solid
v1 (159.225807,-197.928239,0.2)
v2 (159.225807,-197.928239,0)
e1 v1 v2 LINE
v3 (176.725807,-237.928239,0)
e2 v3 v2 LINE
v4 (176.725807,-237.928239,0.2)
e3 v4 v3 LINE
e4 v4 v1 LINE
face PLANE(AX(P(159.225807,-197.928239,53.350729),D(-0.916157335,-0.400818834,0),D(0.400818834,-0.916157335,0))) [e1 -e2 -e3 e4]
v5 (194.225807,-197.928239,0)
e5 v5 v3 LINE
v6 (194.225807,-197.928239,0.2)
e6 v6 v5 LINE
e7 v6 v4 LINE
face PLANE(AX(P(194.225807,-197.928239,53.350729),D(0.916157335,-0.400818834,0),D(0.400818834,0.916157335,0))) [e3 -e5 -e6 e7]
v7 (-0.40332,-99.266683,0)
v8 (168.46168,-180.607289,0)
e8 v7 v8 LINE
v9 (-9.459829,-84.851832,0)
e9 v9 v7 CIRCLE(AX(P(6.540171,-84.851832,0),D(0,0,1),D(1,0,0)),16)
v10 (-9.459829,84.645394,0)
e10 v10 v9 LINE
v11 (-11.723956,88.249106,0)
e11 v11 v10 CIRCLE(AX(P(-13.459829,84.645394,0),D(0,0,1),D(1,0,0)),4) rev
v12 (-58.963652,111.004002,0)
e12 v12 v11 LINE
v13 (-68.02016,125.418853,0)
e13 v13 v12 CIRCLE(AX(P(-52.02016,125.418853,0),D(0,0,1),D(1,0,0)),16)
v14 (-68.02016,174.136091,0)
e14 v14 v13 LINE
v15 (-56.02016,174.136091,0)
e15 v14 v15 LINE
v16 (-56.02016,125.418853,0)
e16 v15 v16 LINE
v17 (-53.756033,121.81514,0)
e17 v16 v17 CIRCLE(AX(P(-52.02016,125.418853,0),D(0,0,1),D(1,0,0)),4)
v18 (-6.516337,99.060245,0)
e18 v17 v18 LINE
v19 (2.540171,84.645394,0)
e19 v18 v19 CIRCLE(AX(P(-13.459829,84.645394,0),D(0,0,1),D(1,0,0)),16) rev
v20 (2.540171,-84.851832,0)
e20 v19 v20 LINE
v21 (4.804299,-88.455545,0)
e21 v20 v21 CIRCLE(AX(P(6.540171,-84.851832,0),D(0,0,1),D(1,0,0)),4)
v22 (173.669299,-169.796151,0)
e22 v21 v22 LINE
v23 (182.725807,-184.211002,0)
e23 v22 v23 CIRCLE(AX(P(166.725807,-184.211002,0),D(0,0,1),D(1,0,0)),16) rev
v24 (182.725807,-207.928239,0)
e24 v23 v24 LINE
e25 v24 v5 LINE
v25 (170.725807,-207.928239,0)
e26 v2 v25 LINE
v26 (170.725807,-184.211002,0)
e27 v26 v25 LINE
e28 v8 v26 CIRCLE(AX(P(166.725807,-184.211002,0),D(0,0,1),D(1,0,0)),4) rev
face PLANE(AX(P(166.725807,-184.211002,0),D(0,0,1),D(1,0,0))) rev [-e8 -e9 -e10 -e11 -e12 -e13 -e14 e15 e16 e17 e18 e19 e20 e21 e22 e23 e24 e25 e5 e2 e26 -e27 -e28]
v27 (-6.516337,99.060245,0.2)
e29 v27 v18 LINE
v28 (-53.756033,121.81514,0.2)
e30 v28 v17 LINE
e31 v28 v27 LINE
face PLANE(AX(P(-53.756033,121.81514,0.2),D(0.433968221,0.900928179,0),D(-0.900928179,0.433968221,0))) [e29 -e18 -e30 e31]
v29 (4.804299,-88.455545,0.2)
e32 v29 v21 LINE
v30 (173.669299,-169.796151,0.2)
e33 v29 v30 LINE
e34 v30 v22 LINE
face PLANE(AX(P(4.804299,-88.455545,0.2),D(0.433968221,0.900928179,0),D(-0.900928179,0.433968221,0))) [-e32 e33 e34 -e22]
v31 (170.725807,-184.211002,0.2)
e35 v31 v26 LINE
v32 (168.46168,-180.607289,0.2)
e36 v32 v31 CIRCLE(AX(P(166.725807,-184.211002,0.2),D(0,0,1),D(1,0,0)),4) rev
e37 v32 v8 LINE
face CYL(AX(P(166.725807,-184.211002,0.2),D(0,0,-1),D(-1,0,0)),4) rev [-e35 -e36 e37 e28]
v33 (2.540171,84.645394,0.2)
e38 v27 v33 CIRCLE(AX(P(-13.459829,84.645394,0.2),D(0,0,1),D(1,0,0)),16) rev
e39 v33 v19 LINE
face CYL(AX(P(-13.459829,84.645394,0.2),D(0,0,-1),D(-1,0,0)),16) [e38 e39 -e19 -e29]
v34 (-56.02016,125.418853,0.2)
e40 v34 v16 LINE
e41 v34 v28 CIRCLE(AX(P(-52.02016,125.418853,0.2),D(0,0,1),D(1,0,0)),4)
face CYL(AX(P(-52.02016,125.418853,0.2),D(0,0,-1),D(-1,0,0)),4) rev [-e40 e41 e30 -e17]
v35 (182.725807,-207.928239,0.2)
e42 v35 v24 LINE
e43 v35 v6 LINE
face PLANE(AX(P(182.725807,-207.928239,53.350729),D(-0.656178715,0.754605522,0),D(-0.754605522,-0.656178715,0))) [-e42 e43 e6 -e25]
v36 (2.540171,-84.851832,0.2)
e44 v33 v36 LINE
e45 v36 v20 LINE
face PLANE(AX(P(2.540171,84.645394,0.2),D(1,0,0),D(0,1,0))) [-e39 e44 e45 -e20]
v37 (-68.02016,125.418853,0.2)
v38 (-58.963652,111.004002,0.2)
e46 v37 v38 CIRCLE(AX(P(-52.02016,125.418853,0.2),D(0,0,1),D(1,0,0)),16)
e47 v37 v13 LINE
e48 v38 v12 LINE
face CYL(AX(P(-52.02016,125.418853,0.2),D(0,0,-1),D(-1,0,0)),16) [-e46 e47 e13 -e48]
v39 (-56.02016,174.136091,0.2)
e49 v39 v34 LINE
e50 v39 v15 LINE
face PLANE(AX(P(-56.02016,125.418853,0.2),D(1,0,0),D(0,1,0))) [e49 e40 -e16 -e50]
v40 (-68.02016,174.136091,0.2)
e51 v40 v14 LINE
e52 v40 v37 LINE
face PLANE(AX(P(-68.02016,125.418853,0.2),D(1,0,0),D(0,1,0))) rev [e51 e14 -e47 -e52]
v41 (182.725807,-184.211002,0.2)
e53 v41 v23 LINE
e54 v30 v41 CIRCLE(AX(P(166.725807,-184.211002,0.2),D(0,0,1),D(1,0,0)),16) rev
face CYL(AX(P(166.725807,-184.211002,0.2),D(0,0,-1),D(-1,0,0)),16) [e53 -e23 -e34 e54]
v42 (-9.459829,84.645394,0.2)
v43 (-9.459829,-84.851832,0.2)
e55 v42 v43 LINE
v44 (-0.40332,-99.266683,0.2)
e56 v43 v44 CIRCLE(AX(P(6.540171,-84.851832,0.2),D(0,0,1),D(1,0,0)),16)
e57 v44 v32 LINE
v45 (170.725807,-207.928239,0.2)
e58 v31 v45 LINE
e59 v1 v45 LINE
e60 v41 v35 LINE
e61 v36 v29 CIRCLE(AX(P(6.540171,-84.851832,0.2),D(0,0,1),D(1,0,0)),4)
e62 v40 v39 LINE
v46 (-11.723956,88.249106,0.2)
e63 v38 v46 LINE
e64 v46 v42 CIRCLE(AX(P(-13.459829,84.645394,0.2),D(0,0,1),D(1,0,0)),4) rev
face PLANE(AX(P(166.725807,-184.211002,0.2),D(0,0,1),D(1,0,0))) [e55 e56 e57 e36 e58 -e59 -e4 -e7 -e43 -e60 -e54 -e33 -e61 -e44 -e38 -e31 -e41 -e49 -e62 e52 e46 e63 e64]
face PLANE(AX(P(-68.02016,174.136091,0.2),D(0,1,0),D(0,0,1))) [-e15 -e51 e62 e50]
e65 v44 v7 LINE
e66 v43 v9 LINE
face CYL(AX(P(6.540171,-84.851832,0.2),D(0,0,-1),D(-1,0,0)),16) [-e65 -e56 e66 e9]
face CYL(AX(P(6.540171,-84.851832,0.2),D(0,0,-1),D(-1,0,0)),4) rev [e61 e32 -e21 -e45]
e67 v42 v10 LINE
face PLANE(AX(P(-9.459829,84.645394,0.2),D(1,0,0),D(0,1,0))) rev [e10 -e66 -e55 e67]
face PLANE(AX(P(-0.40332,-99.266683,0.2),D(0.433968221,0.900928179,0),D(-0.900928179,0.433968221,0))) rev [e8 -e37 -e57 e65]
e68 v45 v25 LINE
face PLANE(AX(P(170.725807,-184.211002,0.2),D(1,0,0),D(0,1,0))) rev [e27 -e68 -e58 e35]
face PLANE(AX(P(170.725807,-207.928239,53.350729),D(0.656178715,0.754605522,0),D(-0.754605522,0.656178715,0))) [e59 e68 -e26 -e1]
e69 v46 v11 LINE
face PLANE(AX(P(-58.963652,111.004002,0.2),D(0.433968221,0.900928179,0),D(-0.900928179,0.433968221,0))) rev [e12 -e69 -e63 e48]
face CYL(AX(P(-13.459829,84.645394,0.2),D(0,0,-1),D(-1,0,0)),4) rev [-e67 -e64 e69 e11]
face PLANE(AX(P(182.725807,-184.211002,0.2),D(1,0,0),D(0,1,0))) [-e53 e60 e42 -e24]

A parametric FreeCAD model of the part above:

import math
import FreeCAD as App
import Part
import Sketcher

doc = App.newDocument("Part")
body = doc.addObject("PartDesign::Body", "Body")

# Sketch on XY plane
sketch1 = doc.addObject("Sketcher::SketchObject", "Sketch")
body.addObject(sketch1)
sketch1.AttachmentSupport = (doc.XY_Plane, [""])
sketch1.MapMode = "FlatFace"
sketch1.addGeometry(Part.LineSegment(App.Vector(-68.02016, 174.136091, 0), App.Vector(-68.02016, 125.418853, 0)), False)
sketch1.addGeometry(Part.ArcOfCircle(Part.Circle(App.Vector(-52.02016, 125.418853, 0), App.Vector(0, 0, 1), 16), math.radians(180), math.radians(244.280342)), False)
sketch1.addGeometry(Part.LineSegment(App.Vector(-58.963652, 111.004002, 0), App.Vector(-11.723956, 88.249106, 0)), False)
sketch1.addGeometry(Part.ArcOfCircle(Part.Circle(App.Vector(-13.459829, 84.645394, 0), App.Vector(0, 0, 1), 4), math.radians(0), math.radians(64.280342)), False)
sketch1.addGeometry(Part.LineSegment(App.Vector(-9.459829, 84.645394, 0), App.Vector(-9.459829, -84.851832, 0)), False)
sketch1.addGeometry(Part.ArcOfCircle(Part.Circle(App.Vector(6.540171, -84.851832, 0), App.Vector(0, 0, 1), 16), math.radians(180), math.radians(244.280342)), False)
sketch1.addGeometry(Part.LineSegment(App.Vector(-0.40332, -99.266683, 0), App.Vector(168.46168, -180.607289, 0)), False)
sketch1.addGeometry(Part.ArcOfCircle(Part.Circle(App.Vector(166.725807, -184.211002, 0), App.Vector(0, 0, 1), 4), math.radians(0), math.radians(64.280342)), False)
sketch1.addGeometry(Part.LineSegment(App.Vector(170.725807, -184.211002, 0), App.Vector(170.725807, -207.928239, 0)), False)
sketch1.addGeometry(Part.LineSegment(App.Vector(170.725807, -207.928239, 0), App.Vector(182.725807, -207.928239, 0)), False)
sketch1.addGeometry(Part.LineSegment(App.Vector(182.725807, -207.928239, 0), App.Vector(182.725807, -184.211002, 0)), False)
sketch1.addGeometry(Part.ArcOfCircle(Part.Circle(App.Vector(166.725807, -184.211002, 0), App.Vector(0, 0, 1), 16), math.radians(0), math.radians(64.280342)), False)
sketch1.addGeometry(Part.LineSegment(App.Vector(173.669299, -169.796151, 0), App.Vector(4.804299, -88.455545, 0)), False)
sketch1.addGeometry(Part.ArcOfCircle(Part.Circle(App.Vector(6.540171, -84.851832, 0), App.Vector(0, 0, 1), 4), math.radians(180), math.radians(244.280342)), False)
sketch1.addGeometry(Part.LineSegment(App.Vector(2.540171, -84.851832, 0), App.Vector(2.540171, 84.645394, 0)), False)
sketch1.addGeometry(Part.ArcOfCircle(Part.Circle(App.Vector(-13.459829, 84.645394, 0), App.Vector(0, 0, 1), 16), math.radians(0), math.radians(64.280342)), False)
sketch1.addGeometry(Part.LineSegment(App.Vector(-6.516337, 99.060245, 0), App.Vector(-53.756033, 121.81514, 0)), False)
sketch1.addGeometry(Part.ArcOfCircle(Part.Circle(App.Vector(-52.02016, 125.418853, 0), App.Vector(0, 0, 1), 4), math.radians(180), math.radians(244.280342)), False)
sketch1.addGeometry(Part.LineSegment(App.Vector(-56.02016, 125.418853, 0), App.Vector(-56.02016, 174.136091, 0)), False)
sketch1.addGeometry(Part.LineSegment(App.Vector(-56.02016, 174.136091, 0), App.Vector(-68.02016, 174.136091, 0)), False)
sketch1.addConstraint(Sketcher.Constraint("Coincident", 0, 2, 1, 1))
sketch1.addConstraint(Sketcher.Constraint("Coincident", 1, 2, 2, 1))
sketch1.addConstraint(Sketcher.Constraint("Coincident", 2, 2, 3, 2))
sketch1.addConstraint(Sketcher.Constraint("Coincident", 3, 1, 4, 1))
sketch1.addConstraint(Sketcher.Constraint("Coincident", 4, 2, 5, 1))
sketch1.addConstraint(Sketcher.Constraint("Coincident", 5, 2, 6, 1))
sketch1.addConstraint(Sketcher.Constraint("Coincident", 6, 2, 7, 2))
sketch1.addConstraint(Sketcher.Constraint("Coincident", 7, 1, 8, 1))
sketch1.addConstraint(Sketcher.Constraint("Coincident", 8, 2, 9, 1))
sketch1.addConstraint(Sketcher.Constraint("Coincident", 9, 2, 10, 1))
sketch1.addConstraint(Sketcher.Constraint("Coincident", 10, 2, 11, 1))
sketch1.addConstraint(Sketcher.Constraint("Coincident", 11, 2, 12, 1))
sketch1.addConstraint(Sketcher.Constraint("Coincident", 12, 2, 13, 2))
sketch1.addConstraint(Sketcher.Constraint("Coincident", 13, 1, 14, 1))
sketch1.addConstraint(Sketcher.Constraint("Coincident", 14, 2, 15, 1))
sketch1.addConstraint(Sketcher.Constraint("Coincident", 15, 2, 16, 1))
sketch1.addConstraint(Sketcher.Constraint("Coincident", 16, 2, 17, 2))
sketch1.addConstraint(Sketcher.Constraint("Coincident", 17, 1, 18, 1))
sketch1.addConstraint(Sketcher.Constraint("Coincident", 18, 2, 19, 1))
sketch1.addConstraint(Sketcher.Constraint("Coincident", 19, 2, 0, 1))
sketch1.addConstraint(Sketcher.Constraint("Vertical", 0))
sketch1.addConstraint(Sketcher.Constraint("Vertical", 4))
sketch1.addConstraint(Sketcher.Constraint("Vertical", 8))
sketch1.addConstraint(Sketcher.Constraint("Horizontal", 9))
sketch1.addConstraint(Sketcher.Constraint("Vertical", 10))
sketch1.addConstraint(Sketcher.Constraint("Vertical", 14))
sketch1.addConstraint(Sketcher.Constraint("Vertical", 18))
sketch1.addConstraint(Sketcher.Constraint("Horizontal", 19))
sketch1.addConstraint(Sketcher.Constraint("Coincident", 11, 3, 7, 3))
sketch1.addConstraint(Sketcher.Constraint("Coincident", 13, 3, 5, 3))
sketch1.addConstraint(Sketcher.Constraint("Coincident", 15, 3, 3, 3))
sketch1.addConstraint(Sketcher.Constraint("Coincident", 17, 3, 1, 3))
sketch1.addConstraint(Sketcher.Constraint("Radius", 1, 16.0))
sketch1.addConstraint(Sketcher.Constraint("Radius", 3, 4.0))
sketch1.addConstraint(Sketcher.Constraint("Radius", 5, 16.0))
sketch1.addConstraint(Sketcher.Constraint("Radius", 7, 4.0))
sketch1.addConstraint(Sketcher.Constraint("Radius", 11, 16.0))
sketch1.addConstraint(Sketcher.Constraint("Radius", 13, 4.0))
sketch1.addConstraint(Sketcher.Constraint("Radius", 17, 4.0))
sketch1.addConstraint(Sketcher.Constraint("DistanceY", 7, 3, -1, 1, 184.211002))
sketch1.addConstraint(Sketcher.Constraint("DistanceY", 7, 1, -1, 1, 184.211002))
sketch1.addConstraint(Sketcher.Constraint("DistanceY", 10, 2, -1, 1, 184.211002))
sketch1.addConstraint(Sketcher.Constraint("DistanceX", 5, 2, 6, 2, 168.865))
sketch1.addConstraint(Sketcher.Constraint("DistanceX", -1, 1, 11, 2, 173.669299))
sketch1.addConstraint(Sketcher.Constraint("DistanceX", -1, 1, 12, 2, 4.804299))
sketch1.addConstraint(Sketcher.Constraint("DistanceY", 0, 2, 0, 1, 48.717237))
sketch1.addConstraint(Sketcher.Constraint("DistanceY", 4, 2, 4, 1, 169.497226))
sketch1.addConstraint(Sketcher.Constraint("DistanceY", 8, 2, 8, 1, 23.717237))
sketch1.addConstraint(Sketcher.Constraint("DistanceY", 14, 1, 14, 2, 169.497226))
sketch1.addConstraint(Sketcher.Constraint("DistanceY", 18, 1, 18, 2, 48.717237))
sketch1.addConstraint(Sketcher.Constraint("DistanceX", 1, 3, -1, 1, 52.02016))
sketch1.addConstraint(Sketcher.Constraint("DistanceX", 3, 3, -1, 1, 13.459829))
sketch1.addConstraint(Sketcher.Constraint("DistanceX", 1, 2, -1, 1, 58.963652))
sketch1.addConstraint(Sketcher.Constraint("DistanceX", 5, 2, -1, 1, 0.40332))
sketch1.addConstraint(Sketcher.Constraint("DistanceY", 6, 2, -1, 1, 180.607289))
sketch1.addConstraint(Sketcher.Constraint("DistanceY", -1, 1, 16, 2, 121.81514))
sketch1.addConstraint(Sketcher.Constraint("DistanceY", -1, 1, 18, 2, 174.136091))
sketch1.addConstraint(Sketcher.Constraint("DistanceY", 3, 3, 1, 3, 40.773459))
sketch1.addConstraint(Sketcher.Constraint("DistanceY", 7, 3, 5, 3, 99.359169))
sketch1.addConstraint(Sketcher.Constraint("DistanceY", 3, 3, 0, 2, 40.773459))
sketch1.addConstraint(Sketcher.Constraint("DistanceY", 3, 1, 1, 2, 26.358609))
sketch1.addConstraint(Sketcher.Constraint("DistanceY", 5, 2, 13, 1, 14.414851))
sketch1.addConstraint(Sketcher.Constraint("DistanceX", 2, 2, 15, 2, 5.207619))
sketch1.addConstraint(Sketcher.Constraint("DistanceX", 3, 1, 15, 2, 2.943492))
pad1 = doc.addObject("PartDesign::Pad", "Pad")
body.addObject(pad1)
pad1.Profile = sketch1
pad1.Length = 0.2

# Sketch on XY plane
sketch2 = doc.addObject("Sketcher::SketchObject", "Sketch001")
body.addObject(sketch2)
sketch2.AttachmentSupport = (doc.XY_Plane, [""])
sketch2.MapMode = "FlatFace"
sketch2.addGeometry(Part.LineSegment(App.Vector(183, -208, 0), App.Vector(194, -198, 0)), False)
sketch2.addGeometry(Part.LineSegment(App.Vector(194, -198, 0), App.Vector(177, -238, 0)), False)
sketch2.addGeometry(Part.LineSegment(App.Vector(177, -238, 0), App.Vector(159, -198, 0)), False)
sketch2.addGeometry(Part.LineSegment(App.Vector(159, -198, 0), App.Vector(171, -208, 0)), False)
sketch2.addGeometry(Part.LineSegment(App.Vector(171, -208, 0), App.Vector(183, -208, 0)), False)
sketch2.addConstraint(Sketcher.Constraint("Coincident", 0, 2, 1, 1))
sketch2.addConstraint(Sketcher.Constraint("Coincident", 1, 2, 2, 1))
sketch2.addConstraint(Sketcher.Constraint("Coincident", 2, 2, 3, 1))
sketch2.addConstraint(Sketcher.Constraint("Coincident", 3, 2, 4, 1))
sketch2.addConstraint(Sketcher.Constraint("Coincident", 4, 2, 0, 1))
sketch2.addConstraint(Sketcher.Constraint("Horizontal", 4))
sketch2.addConstraint(Sketcher.Constraint("Horizontal", 0, 2, 2, 2))
sketch2.addConstraint(Sketcher.Constraint("Equal", 1, 2))
sketch2.addConstraint(Sketcher.Constraint("Equal", 0, 3))
sketch2.addConstraint(Sketcher.Constraint("DistanceX", 4, 1, 4, 2, 12.0))
sketch2.addConstraint(Sketcher.Constraint("DistanceY", 1, 2, 0, 2, 40.0))
sketch2.addConstraint(Sketcher.Constraint("DistanceX", 2, 2, 0, 2, 35.0))
sketch2.addConstraint(Sketcher.Constraint("DistanceY", 3, 2, 2, 2, 10.0))
sketch2.addConstraint(Sketcher.Constraint("DistanceY", 0, 2, -1, 1, 197.928239))
sketch2.addConstraint(Sketcher.Constraint("DistanceX", -1, 1, 0, 2, 194.225807))
pad2 = doc.addObject("PartDesign::Pad", "Pad001")
body.addObject(pad2)
pad2.Profile = sketch2
pad2.Length = 0.2

doc.recompute()
